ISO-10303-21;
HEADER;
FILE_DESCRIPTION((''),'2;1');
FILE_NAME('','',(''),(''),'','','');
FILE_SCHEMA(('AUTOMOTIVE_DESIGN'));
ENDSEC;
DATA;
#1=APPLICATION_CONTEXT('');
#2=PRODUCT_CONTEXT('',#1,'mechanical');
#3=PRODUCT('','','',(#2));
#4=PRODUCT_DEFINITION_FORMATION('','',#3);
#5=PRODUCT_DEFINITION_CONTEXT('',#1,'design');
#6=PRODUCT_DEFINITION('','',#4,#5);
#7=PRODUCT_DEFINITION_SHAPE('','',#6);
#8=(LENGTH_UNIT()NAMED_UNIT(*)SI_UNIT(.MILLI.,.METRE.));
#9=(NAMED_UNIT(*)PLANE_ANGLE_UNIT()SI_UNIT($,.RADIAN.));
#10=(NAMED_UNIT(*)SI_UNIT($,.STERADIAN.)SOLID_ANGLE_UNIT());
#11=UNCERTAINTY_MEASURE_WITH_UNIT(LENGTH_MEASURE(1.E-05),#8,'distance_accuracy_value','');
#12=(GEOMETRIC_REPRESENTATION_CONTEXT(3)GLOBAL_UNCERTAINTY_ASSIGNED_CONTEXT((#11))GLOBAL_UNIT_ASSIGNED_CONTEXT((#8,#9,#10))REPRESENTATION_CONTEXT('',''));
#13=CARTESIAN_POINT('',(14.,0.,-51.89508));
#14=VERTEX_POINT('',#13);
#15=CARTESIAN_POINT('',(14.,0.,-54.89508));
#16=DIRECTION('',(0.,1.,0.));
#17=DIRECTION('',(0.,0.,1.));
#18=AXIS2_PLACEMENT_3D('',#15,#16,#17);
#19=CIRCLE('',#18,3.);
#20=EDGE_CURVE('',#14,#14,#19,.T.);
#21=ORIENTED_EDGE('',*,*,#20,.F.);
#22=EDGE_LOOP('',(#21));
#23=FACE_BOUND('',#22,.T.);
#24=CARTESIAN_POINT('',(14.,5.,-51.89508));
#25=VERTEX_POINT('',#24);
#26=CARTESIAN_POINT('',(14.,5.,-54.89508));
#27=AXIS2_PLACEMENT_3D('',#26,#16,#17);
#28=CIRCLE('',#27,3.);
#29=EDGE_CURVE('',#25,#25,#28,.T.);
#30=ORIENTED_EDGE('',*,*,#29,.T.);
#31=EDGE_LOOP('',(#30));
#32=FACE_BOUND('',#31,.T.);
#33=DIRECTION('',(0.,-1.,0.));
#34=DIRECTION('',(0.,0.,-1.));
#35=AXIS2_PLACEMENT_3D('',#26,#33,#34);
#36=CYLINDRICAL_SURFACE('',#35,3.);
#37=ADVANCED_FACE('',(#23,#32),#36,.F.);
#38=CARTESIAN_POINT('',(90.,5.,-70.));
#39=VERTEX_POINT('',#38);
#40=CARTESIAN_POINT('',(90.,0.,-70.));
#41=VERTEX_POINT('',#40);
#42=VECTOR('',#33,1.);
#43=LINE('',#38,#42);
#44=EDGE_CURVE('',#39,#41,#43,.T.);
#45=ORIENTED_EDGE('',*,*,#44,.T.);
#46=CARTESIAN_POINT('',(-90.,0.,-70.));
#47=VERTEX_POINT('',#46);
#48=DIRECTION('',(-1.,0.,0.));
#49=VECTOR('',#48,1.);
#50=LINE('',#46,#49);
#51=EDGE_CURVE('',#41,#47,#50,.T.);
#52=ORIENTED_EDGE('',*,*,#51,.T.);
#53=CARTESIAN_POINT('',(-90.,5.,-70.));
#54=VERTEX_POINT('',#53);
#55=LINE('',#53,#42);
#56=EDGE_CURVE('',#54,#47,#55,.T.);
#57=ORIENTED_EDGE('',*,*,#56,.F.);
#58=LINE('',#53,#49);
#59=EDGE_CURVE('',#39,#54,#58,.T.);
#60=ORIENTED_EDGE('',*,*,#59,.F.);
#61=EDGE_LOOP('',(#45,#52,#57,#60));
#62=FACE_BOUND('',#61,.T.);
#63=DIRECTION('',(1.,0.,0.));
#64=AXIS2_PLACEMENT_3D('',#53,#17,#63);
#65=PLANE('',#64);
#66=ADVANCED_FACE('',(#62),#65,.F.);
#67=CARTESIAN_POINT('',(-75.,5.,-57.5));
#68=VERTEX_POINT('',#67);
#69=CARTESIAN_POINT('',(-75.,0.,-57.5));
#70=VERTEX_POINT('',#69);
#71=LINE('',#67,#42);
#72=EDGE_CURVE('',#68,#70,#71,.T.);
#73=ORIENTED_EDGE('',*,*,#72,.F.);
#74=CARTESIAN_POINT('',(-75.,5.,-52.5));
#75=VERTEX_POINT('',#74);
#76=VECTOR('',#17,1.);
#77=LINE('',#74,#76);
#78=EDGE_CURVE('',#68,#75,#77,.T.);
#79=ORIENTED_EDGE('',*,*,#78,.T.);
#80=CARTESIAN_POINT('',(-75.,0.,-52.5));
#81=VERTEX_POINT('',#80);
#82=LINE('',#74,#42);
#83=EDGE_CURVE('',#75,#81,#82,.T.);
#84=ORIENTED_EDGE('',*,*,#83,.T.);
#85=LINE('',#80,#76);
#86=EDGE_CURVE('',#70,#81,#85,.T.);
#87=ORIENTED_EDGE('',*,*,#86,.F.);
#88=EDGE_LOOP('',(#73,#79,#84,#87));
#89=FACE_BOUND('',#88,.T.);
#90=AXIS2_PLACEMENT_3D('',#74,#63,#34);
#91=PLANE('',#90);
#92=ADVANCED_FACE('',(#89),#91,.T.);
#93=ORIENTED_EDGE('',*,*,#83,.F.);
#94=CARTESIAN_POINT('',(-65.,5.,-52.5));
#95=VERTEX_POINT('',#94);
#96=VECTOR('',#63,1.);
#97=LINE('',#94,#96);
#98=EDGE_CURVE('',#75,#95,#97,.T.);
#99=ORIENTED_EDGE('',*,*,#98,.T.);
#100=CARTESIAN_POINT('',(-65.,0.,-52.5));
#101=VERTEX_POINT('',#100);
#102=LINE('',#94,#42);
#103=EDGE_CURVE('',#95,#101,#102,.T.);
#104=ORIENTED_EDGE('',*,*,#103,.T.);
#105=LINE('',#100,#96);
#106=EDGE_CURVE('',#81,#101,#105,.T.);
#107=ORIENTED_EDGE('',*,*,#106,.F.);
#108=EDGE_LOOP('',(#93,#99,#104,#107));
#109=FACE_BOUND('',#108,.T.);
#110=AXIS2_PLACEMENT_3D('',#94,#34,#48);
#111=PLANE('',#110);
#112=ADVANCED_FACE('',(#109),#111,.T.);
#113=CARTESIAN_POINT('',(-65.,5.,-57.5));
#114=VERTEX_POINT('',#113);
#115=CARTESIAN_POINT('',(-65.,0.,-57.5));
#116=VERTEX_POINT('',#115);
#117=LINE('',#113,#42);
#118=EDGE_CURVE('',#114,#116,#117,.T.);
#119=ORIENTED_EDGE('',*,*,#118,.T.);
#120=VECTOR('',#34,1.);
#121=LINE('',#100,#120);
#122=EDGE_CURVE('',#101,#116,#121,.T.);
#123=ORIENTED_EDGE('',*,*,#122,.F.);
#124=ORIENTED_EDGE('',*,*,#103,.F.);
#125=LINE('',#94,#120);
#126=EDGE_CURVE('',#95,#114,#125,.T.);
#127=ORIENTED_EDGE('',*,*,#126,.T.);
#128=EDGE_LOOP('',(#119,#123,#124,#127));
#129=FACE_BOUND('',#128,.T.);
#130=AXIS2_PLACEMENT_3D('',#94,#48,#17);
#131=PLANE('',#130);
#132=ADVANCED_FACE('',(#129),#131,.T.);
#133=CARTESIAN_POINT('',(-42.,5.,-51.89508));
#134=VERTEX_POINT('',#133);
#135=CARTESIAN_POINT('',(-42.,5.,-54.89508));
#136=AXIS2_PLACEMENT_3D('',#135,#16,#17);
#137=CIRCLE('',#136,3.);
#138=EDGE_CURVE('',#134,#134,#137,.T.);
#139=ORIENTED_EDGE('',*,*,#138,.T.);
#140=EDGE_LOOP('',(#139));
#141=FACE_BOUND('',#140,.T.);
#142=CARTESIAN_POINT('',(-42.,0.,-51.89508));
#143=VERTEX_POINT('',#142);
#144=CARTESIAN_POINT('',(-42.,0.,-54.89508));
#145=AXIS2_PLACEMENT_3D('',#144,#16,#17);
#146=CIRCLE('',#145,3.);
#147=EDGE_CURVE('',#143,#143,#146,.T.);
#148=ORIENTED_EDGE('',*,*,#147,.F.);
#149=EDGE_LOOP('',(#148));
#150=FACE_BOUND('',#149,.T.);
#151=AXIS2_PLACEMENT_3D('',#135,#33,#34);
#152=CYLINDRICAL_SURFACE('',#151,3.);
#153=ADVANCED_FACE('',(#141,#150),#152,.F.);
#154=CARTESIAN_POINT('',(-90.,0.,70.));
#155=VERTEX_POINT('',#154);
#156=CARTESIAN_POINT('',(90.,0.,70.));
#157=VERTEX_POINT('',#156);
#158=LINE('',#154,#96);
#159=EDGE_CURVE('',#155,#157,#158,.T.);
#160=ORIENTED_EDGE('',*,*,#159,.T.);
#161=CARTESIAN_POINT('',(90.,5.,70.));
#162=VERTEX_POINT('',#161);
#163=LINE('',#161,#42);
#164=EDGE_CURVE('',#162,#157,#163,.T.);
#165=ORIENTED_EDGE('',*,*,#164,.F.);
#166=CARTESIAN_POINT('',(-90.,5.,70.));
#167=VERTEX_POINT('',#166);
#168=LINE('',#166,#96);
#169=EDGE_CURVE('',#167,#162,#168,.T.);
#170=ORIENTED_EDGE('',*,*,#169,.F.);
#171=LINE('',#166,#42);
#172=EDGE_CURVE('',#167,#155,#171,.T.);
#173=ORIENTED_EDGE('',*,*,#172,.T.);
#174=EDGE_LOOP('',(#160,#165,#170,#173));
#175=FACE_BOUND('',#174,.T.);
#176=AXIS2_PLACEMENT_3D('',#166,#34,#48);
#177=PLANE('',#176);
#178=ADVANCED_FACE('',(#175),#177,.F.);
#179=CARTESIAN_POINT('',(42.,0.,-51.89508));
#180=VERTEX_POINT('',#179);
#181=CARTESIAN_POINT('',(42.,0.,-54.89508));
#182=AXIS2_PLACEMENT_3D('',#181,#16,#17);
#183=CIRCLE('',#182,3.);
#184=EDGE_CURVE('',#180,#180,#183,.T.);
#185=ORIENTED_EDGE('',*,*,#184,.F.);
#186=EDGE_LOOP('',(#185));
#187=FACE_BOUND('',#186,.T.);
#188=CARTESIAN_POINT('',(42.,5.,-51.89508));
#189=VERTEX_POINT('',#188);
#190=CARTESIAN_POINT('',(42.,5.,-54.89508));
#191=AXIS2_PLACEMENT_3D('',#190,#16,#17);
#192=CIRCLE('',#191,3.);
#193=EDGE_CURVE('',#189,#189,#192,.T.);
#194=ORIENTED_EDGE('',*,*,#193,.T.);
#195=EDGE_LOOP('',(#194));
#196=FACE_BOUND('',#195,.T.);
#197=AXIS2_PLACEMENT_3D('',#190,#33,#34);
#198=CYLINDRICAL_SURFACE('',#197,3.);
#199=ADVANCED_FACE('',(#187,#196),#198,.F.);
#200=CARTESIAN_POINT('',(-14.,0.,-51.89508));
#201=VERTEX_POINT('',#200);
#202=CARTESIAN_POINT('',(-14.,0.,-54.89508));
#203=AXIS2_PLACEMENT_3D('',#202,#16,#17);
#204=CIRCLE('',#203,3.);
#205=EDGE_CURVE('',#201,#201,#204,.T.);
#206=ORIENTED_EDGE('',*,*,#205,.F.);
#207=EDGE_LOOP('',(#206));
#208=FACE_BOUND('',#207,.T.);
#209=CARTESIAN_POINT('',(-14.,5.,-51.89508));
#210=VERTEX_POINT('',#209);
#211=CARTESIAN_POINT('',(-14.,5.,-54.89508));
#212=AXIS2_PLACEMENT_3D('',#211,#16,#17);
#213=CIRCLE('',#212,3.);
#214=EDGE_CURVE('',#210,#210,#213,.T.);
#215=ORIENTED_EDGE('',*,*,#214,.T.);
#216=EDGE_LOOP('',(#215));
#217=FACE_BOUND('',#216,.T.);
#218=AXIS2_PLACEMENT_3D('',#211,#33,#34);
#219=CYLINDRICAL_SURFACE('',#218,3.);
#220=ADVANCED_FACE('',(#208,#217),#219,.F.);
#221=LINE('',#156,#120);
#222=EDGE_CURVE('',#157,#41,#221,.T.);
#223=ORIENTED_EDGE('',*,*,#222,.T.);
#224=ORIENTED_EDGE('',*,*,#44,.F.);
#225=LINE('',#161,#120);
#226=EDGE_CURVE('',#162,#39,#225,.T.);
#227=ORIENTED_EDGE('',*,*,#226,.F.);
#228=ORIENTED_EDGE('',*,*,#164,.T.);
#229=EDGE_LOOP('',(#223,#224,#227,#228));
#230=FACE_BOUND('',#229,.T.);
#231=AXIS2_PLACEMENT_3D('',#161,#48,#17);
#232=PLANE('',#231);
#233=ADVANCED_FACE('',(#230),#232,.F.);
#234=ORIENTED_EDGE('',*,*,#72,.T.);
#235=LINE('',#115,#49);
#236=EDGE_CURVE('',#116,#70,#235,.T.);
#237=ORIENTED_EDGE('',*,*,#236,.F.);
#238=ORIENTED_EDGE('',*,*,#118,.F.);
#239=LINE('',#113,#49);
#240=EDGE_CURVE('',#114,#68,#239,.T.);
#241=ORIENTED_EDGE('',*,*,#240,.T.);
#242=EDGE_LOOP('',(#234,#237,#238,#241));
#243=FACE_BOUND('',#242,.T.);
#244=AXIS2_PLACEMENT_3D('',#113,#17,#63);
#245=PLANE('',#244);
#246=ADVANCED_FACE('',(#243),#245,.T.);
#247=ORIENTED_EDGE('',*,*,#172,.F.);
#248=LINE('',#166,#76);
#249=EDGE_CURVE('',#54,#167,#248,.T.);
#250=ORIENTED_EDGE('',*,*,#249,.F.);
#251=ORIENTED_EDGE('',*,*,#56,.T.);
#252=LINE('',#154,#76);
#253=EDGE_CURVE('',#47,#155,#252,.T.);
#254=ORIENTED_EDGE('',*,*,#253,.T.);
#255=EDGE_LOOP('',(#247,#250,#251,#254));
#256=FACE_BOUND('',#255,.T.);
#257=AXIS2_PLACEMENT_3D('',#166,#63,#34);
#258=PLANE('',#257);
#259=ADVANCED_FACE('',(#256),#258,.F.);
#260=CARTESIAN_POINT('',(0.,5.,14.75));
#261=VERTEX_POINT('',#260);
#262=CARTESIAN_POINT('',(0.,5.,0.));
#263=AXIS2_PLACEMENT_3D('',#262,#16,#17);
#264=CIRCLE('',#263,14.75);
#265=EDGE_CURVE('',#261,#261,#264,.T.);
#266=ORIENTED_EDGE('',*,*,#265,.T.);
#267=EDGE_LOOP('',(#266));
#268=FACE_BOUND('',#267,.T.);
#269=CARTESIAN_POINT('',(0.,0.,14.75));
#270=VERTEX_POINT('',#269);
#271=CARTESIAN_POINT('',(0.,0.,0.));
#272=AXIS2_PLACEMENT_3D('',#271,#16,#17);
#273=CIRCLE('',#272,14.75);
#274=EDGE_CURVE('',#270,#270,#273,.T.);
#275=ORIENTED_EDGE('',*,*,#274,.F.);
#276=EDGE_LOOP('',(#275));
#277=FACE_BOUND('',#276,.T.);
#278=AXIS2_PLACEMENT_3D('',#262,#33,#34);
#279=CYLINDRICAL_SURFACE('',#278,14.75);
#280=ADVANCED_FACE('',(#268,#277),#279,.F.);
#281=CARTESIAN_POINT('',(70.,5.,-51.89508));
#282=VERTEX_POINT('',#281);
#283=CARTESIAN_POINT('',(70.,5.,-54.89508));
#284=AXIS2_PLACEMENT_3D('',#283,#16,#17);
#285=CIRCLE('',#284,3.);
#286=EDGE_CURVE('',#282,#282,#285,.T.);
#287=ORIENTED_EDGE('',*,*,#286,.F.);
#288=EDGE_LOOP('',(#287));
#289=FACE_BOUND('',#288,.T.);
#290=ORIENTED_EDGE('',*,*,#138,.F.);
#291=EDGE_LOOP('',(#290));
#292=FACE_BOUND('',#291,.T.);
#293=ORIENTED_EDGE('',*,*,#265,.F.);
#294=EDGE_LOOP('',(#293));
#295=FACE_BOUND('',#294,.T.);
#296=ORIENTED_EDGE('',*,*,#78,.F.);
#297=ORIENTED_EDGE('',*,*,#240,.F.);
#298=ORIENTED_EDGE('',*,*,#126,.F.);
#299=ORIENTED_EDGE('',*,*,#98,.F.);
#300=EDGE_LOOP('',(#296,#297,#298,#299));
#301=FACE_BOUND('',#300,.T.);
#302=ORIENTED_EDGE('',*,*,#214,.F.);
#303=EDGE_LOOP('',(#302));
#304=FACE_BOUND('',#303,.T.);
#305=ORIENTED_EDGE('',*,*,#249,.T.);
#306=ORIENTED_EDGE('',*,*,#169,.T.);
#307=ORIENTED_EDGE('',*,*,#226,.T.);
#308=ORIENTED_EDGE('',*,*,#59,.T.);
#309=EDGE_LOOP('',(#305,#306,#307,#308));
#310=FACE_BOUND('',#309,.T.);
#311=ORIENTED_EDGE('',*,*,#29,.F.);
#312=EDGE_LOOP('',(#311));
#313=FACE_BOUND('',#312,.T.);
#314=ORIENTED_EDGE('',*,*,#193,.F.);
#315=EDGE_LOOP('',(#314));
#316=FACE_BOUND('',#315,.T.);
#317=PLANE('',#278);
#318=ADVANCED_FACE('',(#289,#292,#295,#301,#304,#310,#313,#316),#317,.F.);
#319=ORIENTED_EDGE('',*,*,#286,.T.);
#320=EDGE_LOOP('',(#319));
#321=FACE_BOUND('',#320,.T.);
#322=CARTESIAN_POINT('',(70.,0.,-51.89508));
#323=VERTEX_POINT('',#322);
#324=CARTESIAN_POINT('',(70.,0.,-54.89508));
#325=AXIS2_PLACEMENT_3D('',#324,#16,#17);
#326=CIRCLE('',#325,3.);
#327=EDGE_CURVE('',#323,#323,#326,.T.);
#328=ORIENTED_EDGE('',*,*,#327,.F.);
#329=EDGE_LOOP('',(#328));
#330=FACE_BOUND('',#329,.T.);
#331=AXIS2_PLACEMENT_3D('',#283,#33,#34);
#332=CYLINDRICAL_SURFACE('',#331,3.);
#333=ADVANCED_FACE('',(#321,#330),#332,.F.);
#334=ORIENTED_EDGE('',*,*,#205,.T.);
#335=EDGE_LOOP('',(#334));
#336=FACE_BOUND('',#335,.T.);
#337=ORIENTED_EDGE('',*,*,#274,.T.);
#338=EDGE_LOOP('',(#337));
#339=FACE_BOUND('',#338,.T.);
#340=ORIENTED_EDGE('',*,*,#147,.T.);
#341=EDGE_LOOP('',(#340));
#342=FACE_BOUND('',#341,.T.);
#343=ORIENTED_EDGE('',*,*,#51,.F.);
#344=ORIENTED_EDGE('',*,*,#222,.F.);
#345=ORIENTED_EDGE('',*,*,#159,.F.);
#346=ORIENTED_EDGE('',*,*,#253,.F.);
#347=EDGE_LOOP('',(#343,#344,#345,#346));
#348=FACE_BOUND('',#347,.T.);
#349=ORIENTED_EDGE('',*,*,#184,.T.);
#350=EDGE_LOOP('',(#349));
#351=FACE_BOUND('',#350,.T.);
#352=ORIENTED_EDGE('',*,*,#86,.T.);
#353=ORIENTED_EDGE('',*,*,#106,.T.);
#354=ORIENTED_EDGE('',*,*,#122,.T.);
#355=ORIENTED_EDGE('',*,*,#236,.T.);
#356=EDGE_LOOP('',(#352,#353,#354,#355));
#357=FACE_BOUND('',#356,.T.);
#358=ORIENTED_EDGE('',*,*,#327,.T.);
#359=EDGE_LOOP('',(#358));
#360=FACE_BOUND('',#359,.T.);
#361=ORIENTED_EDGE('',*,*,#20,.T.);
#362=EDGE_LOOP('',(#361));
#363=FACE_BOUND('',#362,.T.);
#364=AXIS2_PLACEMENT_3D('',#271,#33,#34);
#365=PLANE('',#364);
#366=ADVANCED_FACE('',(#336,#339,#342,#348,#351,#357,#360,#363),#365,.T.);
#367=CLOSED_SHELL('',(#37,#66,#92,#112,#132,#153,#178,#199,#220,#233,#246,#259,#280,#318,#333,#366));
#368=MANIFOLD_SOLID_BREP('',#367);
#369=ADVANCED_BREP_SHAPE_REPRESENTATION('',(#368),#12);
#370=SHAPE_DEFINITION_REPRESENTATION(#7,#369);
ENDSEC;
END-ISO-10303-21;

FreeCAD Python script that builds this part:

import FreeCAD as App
import Part
import Sketcher

V = App.Vector
Q = App.Units.Quantity

doc = App.newDocument("Part")
body = doc.addObject("PartDesign::Body", "Body")

# Sketch on XZ plane
sketch1 = body.newObject("Sketcher::SketchObject", "Sketch")
sketch1.AttachmentSupport = (doc.getObject("XZ_Plane"), [""])
sketch1.MapMode = "FlatFace"
sketch1.addGeometry([
    Part.LineSegment(V(-90, -70, 0), V(-90, 70, 0)),  # 0
    Part.LineSegment(V(-90, 70, 0), V(90, 70, 0)),  # 1
    Part.LineSegment(V(90, 70, 0), V(90, -70, 0)),  # 2
    Part.LineSegment(V(90, -70, 0), V(-90, -70, 0)),  # 3
    Part.Circle(V(0, 0, 0), V(0, 0, 1), 14.8),  # 4
    Part.LineSegment(V(-65, -52.5, 0), V(-75, -52.5, 0)),  # 5
    Part.LineSegment(V(-75, -52.5, 0), V(-75, -57.5, 0)),  # 6
    Part.LineSegment(V(-75, -57.5, 0), V(-65, -57.5, 0)),  # 7
    Part.LineSegment(V(-65, -57.5, 0), V(-65, -52.5, 0)),  # 8
    Part.Circle(V(-42, -54.9, 0), V(0, 0, 1), 3),  # 9
    Part.Circle(V(-14, -54.9, 0), V(0, 0, 1), 3),  # 10
    Part.Circle(V(14, -54.9, 0), V(0, 0, 1), 3),  # 11
    Part.Circle(V(42, -54.9, 0), V(0, 0, 1), 3),  # 12
    Part.Circle(V(70, -54.9, 0), V(0, 0, 1), 3),  # 13
], False)
sketch1.addConstraint([
    Sketcher.Constraint("Coincident", 0, 2, 1, 1),
    Sketcher.Constraint("Coincident", 1, 2, 2, 1),
    Sketcher.Constraint("Coincident", 2, 2, 3, 1),
    Sketcher.Constraint("Coincident", 3, 2, 0, 1),
    Sketcher.Constraint("Coincident", 5, 2, 6, 1),
    Sketcher.Constraint("Coincident", 6, 2, 7, 1),
    Sketcher.Constraint("Coincident", 7, 2, 8, 1),
    Sketcher.Constraint("Coincident", 8, 2, 5, 1),
    Sketcher.Constraint("Vertical", 0),
    Sketcher.Constraint("Horizontal", 1),
    Sketcher.Constraint("Vertical", 2),
    Sketcher.Constraint("Horizontal", 3),
    Sketcher.Constraint("Horizontal", 5),
    Sketcher.Constraint("Vertical", 6),
    Sketcher.Constraint("Horizontal", 7),
    Sketcher.Constraint("Vertical", 8),
    Sketcher.Constraint("Coincident", 4, 3, -1, 1),
    Sketcher.Constraint("Equal", 9, 10),
    Sketcher.Constraint("Equal", 10, 11),
    Sketcher.Constraint("Equal", 11, 12),
    Sketcher.Constraint("Equal", 12, 13),
    Sketcher.Constraint("Symmetric", 0, 2, 2, 2, -1, 1),
    Sketcher.Constraint("Symmetric", 10, 3, 11, 3, -2),
    Sketcher.Constraint("Symmetric", 9, 3, 12, 3, -2),
    Sketcher.Constraint("Horizontal", 9, 3, 10, 3),
    Sketcher.Constraint("Horizontal", 12, 3, 13, 3),
    Sketcher.Constraint("Diameter", 9, Q("6 mm")),
    Sketcher.Constraint("Diameter", 4, Q("29.5 mm")),
    Sketcher.Constraint("DistanceX", 1, 1, 1, 2, Q("180 mm")),
    Sketcher.Constraint("DistanceX", 5, 2, 5, 1, Q("10 mm")),
    Sketcher.Constraint("DistanceY", 0, 1, 0, 2, Q("140 mm")),
    Sketcher.Constraint("DistanceY", 6, 2, 6, 1, Q("5 mm")),
    Sketcher.Constraint("DistanceX", 9, 3, -1, 1, Q("42 mm")),
    Sketcher.Constraint("DistanceX", 10, 3, -1, 1, Q("14 mm")),
    Sketcher.Constraint("DistanceX", -1, 1, 13, 3, Q("70 mm")),
    Sketcher.Constraint("DistanceX", 5, 2, -1, 1, Q("75 mm")),
    Sketcher.Constraint("DistanceY", 5, 2, -1, 1, Q("52.5 mm")),
    Sketcher.Constraint("DistanceY", 9, 3, -1, 1, Q("54.89508 mm")),
])
pad1 = body.newObject("PartDesign::Pad", "Pad")
pad1.Profile = sketch1
pad1.Length = 5
pad1.Reversed = True

doc.recompute()
